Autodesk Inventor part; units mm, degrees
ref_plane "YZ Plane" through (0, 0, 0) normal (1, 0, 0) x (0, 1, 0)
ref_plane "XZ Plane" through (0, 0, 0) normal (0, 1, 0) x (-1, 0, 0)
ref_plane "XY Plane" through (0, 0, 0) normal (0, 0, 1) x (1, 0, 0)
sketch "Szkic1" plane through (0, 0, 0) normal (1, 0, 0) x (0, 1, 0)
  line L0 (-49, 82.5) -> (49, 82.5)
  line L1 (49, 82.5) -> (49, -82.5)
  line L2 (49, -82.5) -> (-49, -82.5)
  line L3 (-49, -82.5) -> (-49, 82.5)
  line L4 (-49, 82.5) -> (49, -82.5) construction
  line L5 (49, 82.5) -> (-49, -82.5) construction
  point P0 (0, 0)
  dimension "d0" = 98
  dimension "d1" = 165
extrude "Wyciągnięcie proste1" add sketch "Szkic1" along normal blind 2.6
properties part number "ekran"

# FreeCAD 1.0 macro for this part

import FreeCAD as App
import Part
import Sketcher
from FreeCAD import Vector


def add_polygon(sketch, points):
    """Adds a closed chain of lines whose ends are joined by coincident constraints."""
    first, n = sketch.GeometryCount, len(points)
    for a, b in zip(points, points[1:] + points[:1]):
        sketch.addGeometry(Part.LineSegment(App.Vector(*a, 0), App.Vector(*b, 0)), False)
    for i in range(n):
        sketch.addConstraint(Sketcher.Constraint("Coincident", first + i, 2, first + (i + 1) % n, 1))

doc = App.newDocument("Part")
body = doc.addObject("PartDesign::Body", "Body")

# Sketch on YZ plane
sketch1 = body.newObject("Sketcher::SketchObject", "Sketch")
sketch1.AttachmentSupport = (doc.getObject("YZ_Plane"), [""])
sketch1.MapMode = "FlatFace"
add_polygon(sketch1, [(49, 82.5), (-49, 82.5), (-49, -82.5), (49, -82.5)])  # lines 0-3
sketch1.addConstraint(Sketcher.Constraint("Horizontal", 0))
sketch1.addConstraint(Sketcher.Constraint("Vertical", 1))
sketch1.addConstraint(Sketcher.Constraint("Horizontal", 2))
sketch1.addConstraint(Sketcher.Constraint("Vertical", 3))
sketch1.addConstraint(Sketcher.Constraint("Symmetric", 0, 2, 2, 2, -1, 1))
sketch1.addConstraint(Sketcher.Constraint("DistanceX", 0, 2, 0, 1, 98.0))
sketch1.addConstraint(Sketcher.Constraint("DistanceY", 1, 2, 1, 1, 165.0))
pad1 = body.newObject("PartDesign::Pad", "Pad")
pad1.Profile = sketch1
pad1.Length = 2.6

doc.recompute()
